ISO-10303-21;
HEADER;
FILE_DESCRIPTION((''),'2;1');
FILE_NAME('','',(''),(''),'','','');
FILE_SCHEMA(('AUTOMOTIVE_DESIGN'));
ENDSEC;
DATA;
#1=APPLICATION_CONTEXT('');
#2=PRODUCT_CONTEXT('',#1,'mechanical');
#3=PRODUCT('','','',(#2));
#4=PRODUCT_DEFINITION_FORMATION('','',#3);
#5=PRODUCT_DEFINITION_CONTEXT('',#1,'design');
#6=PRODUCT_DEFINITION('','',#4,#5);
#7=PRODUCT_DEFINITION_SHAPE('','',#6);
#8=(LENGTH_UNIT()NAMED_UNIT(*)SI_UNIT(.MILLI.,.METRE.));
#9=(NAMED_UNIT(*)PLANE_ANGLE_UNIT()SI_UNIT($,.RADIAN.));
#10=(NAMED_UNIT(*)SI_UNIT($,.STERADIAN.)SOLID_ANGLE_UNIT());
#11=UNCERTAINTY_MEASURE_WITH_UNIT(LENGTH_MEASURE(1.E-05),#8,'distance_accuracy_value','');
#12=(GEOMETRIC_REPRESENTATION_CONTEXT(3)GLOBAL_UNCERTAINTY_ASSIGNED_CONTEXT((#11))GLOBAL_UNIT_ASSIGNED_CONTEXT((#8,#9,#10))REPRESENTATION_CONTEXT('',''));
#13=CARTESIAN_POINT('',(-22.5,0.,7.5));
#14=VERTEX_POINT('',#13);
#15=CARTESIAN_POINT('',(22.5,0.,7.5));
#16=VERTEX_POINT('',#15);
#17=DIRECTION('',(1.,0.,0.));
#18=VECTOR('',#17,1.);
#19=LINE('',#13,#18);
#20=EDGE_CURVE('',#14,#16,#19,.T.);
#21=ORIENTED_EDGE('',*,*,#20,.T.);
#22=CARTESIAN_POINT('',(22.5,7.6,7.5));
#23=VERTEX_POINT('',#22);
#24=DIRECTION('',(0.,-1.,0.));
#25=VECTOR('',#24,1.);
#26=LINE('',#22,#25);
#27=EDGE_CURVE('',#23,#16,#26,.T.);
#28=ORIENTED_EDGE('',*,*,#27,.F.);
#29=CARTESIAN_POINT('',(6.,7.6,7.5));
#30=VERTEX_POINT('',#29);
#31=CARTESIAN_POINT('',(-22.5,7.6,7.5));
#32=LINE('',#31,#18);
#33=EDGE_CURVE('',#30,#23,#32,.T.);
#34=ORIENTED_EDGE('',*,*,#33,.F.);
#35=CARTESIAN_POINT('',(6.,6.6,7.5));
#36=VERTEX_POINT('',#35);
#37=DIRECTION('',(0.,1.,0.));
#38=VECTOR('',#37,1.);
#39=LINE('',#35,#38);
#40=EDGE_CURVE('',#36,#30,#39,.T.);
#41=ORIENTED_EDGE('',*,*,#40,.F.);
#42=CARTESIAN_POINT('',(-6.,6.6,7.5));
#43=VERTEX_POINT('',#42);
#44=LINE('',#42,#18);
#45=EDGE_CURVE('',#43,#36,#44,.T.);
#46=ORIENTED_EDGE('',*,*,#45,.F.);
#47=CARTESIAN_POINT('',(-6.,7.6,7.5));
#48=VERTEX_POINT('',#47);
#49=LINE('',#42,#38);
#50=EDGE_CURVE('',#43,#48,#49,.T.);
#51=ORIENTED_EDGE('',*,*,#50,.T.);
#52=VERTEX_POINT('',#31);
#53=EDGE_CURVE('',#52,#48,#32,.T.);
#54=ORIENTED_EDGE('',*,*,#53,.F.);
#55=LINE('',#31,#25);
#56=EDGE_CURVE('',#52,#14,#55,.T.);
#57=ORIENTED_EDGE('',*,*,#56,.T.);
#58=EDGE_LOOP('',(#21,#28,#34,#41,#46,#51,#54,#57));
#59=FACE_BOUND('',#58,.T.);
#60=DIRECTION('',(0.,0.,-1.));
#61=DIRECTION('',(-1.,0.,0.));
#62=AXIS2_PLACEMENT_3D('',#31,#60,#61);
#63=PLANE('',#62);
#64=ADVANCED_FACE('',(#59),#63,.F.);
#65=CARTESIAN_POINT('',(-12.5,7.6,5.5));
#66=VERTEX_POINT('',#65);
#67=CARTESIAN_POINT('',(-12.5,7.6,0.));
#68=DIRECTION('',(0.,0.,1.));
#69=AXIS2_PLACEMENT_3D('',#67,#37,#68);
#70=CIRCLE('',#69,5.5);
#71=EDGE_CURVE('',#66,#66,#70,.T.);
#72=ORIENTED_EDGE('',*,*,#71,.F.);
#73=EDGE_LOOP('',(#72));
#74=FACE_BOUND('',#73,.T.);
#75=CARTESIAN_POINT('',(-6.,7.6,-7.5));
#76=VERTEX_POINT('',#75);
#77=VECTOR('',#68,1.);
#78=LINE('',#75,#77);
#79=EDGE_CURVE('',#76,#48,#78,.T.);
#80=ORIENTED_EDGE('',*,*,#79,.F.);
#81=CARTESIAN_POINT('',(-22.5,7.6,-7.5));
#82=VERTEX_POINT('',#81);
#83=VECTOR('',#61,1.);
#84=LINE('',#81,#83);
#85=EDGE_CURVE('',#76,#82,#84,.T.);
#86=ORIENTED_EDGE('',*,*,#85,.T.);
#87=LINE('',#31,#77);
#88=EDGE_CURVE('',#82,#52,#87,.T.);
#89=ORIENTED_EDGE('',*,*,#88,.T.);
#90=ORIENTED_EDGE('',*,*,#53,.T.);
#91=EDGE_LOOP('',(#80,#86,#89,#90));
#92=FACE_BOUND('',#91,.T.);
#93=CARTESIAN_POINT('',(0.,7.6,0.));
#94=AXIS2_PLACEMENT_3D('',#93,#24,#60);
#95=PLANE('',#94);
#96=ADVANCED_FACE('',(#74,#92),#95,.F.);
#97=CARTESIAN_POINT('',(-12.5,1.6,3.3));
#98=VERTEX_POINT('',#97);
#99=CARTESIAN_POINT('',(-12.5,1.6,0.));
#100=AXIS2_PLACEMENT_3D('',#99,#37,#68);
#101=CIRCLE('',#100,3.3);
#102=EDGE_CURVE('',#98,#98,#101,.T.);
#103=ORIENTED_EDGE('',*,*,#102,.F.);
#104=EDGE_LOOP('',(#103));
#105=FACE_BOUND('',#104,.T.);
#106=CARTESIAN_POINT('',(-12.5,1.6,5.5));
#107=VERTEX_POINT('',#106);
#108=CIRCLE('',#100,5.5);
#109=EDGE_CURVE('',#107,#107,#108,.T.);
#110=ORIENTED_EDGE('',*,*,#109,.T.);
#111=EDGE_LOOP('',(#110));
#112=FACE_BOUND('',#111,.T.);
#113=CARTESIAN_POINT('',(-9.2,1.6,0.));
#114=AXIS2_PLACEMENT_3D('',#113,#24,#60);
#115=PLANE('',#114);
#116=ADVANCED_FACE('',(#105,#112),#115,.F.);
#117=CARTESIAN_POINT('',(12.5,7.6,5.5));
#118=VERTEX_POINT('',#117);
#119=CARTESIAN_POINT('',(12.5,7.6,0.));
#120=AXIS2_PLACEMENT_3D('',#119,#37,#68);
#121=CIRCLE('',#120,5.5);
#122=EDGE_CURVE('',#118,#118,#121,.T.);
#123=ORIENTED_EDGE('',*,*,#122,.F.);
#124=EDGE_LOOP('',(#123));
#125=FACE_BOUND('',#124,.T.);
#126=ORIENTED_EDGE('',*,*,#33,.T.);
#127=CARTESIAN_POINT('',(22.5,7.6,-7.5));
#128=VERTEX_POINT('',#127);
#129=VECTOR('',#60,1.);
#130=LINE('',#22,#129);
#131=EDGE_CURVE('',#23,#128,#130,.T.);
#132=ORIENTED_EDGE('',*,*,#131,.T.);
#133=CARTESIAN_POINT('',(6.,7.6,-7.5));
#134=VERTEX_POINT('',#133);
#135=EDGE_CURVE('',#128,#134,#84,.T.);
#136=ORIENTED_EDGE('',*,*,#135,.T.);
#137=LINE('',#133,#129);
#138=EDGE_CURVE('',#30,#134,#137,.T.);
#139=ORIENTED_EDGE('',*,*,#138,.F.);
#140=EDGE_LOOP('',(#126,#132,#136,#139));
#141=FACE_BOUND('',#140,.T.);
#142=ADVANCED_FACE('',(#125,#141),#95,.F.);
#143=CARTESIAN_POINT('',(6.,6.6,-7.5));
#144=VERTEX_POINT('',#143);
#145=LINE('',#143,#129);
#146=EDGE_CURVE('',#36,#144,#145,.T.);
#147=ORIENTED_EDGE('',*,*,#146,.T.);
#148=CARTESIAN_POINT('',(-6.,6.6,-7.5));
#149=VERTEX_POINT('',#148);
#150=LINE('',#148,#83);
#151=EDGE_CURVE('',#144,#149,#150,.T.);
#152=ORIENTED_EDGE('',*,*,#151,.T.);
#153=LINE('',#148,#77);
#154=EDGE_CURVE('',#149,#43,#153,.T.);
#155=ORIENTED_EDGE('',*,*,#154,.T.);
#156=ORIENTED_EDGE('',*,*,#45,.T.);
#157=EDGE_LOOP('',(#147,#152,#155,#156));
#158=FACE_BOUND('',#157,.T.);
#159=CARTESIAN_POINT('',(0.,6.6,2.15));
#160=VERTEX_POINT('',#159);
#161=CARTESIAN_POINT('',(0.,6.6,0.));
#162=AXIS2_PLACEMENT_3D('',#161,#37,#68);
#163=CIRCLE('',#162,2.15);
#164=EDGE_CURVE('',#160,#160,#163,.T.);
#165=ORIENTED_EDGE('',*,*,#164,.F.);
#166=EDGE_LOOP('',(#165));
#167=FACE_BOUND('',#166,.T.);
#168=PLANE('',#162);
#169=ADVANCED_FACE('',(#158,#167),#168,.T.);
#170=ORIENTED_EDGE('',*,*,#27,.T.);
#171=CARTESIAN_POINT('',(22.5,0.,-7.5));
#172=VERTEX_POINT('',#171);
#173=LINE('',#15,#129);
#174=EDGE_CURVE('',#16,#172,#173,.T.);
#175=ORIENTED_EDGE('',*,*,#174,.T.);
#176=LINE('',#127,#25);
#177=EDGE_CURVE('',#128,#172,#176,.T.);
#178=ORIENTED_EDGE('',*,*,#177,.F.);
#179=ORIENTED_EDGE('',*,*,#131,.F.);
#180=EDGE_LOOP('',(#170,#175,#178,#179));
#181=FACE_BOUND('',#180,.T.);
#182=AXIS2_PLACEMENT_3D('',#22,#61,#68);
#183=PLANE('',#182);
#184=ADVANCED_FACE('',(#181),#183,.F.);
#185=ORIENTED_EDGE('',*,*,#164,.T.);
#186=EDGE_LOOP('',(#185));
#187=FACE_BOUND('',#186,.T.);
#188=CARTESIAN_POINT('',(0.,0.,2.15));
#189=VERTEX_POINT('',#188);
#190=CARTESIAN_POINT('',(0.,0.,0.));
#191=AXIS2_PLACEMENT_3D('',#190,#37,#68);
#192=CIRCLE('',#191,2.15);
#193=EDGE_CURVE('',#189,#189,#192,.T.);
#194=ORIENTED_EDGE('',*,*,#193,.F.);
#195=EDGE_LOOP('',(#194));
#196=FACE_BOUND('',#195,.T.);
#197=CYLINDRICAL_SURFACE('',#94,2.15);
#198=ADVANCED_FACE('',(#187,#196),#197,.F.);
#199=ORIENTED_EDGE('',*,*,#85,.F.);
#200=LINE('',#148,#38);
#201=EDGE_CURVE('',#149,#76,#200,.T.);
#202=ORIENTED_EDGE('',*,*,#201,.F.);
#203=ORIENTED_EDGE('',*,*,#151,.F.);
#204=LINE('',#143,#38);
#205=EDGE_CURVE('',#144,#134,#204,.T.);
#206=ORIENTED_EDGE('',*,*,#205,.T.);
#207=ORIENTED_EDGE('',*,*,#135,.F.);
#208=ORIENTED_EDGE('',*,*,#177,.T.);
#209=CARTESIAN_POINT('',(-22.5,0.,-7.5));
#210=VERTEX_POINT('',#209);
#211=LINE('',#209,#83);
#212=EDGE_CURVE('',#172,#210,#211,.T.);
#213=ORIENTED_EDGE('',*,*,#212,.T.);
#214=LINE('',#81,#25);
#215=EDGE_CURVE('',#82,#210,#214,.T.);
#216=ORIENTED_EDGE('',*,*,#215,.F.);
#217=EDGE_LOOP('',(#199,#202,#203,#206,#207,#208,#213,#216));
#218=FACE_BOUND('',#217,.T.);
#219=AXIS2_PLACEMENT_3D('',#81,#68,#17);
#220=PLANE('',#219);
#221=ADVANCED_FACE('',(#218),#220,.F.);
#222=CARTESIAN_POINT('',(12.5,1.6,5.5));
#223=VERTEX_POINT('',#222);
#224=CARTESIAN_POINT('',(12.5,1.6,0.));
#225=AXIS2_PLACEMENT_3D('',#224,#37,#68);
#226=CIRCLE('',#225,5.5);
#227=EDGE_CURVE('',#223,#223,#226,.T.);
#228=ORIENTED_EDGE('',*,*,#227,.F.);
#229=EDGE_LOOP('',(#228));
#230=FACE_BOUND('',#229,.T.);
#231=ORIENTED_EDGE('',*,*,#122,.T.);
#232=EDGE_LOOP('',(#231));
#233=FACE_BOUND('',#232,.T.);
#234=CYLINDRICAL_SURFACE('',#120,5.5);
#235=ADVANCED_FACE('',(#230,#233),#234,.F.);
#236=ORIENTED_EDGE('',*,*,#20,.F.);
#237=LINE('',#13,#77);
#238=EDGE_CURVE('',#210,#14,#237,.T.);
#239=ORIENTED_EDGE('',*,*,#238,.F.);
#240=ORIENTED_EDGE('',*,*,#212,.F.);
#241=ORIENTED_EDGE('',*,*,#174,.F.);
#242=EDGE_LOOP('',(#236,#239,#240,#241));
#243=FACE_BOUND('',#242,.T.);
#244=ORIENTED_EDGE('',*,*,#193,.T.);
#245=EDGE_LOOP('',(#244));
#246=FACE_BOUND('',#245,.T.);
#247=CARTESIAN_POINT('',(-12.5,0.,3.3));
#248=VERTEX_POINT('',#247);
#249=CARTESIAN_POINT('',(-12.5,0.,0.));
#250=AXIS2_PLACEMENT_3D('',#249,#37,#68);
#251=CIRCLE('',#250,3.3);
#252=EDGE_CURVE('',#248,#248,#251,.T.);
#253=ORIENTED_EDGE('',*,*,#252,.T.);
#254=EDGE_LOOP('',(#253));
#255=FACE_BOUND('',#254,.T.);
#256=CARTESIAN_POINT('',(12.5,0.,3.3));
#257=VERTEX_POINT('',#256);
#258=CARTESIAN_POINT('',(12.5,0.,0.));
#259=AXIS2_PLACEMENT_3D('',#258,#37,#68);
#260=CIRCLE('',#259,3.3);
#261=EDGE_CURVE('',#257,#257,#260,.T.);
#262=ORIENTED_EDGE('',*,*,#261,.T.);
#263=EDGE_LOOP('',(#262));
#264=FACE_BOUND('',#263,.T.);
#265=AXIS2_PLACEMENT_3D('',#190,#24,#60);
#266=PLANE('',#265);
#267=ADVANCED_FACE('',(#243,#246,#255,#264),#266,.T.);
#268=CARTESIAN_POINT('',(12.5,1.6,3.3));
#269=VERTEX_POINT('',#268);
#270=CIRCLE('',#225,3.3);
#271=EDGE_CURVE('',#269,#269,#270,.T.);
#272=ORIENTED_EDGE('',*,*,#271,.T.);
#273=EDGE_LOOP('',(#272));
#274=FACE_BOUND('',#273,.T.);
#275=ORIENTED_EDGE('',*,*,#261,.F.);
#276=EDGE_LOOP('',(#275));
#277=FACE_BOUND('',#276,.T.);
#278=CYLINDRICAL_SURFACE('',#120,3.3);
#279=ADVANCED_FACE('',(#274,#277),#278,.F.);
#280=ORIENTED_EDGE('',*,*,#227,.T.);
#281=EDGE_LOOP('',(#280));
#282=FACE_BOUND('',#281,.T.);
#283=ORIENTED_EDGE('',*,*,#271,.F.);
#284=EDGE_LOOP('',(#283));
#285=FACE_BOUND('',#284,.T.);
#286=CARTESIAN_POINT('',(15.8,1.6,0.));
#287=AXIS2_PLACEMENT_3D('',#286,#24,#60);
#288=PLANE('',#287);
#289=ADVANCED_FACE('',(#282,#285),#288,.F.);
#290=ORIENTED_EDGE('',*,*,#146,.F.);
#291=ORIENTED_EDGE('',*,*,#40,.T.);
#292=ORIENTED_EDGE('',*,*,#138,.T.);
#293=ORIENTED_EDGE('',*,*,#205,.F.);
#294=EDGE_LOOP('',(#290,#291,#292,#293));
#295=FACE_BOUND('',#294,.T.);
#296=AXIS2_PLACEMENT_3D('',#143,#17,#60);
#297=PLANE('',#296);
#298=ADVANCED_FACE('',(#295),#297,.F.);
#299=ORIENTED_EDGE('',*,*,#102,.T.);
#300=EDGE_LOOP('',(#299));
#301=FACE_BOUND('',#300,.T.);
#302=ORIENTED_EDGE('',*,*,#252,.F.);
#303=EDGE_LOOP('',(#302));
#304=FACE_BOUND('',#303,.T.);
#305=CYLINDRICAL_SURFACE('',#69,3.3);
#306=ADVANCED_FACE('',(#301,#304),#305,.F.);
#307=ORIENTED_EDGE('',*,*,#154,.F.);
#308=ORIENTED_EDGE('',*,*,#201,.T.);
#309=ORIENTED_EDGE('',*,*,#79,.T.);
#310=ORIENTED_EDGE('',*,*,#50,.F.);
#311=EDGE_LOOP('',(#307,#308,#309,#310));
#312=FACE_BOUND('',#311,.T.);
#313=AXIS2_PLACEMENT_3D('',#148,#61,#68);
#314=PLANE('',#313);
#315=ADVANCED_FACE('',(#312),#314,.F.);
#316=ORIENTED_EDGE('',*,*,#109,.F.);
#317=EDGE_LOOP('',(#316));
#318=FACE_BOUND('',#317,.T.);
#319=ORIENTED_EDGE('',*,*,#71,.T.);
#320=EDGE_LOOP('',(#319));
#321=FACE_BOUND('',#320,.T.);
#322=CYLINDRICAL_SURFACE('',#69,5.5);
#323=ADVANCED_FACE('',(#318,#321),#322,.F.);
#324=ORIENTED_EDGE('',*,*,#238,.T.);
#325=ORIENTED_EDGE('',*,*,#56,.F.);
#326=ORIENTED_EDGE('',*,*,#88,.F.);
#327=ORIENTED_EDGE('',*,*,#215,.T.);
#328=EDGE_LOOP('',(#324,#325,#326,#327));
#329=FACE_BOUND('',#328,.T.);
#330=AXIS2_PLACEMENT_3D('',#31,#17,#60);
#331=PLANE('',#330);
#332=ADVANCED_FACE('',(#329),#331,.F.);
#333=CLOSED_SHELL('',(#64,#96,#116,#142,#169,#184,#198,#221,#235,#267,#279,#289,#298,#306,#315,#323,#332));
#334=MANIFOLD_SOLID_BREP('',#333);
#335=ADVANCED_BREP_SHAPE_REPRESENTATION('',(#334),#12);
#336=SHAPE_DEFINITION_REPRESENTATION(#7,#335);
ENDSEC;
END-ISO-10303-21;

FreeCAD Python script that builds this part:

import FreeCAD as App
import Part
import Sketcher

doc = App.newDocument("Part")
body = doc.addObject("PartDesign::Body", "Body")

# Sketch on XZ plane
sketch1 = body.newObject("Sketcher::SketchObject", "Sketch")
sketch1.AttachmentSupport = (doc.getObject("XZ_Plane"), [""])
sketch1.MapMode = "FlatFace"
sketch1.addGeometry(Part.LineSegment(App.Vector(-22.5, -7.5, 0), App.Vector(-22.5, 7.5, 0)), False)
sketch1.addGeometry(Part.LineSegment(App.Vector(-22.5, 7.5, 0), App.Vector(22.5, 7.5, 0)), False)
sketch1.addGeometry(Part.LineSegment(App.Vector(22.5, 7.5, 0), App.Vector(22.5, -7.5, 0)), False)
sketch1.addGeometry(Part.LineSegment(App.Vector(22.5, -7.5, 0), App.Vector(-22.5, -7.5, 0)), False)
sketch1.addGeometry(Part.Circle(App.Vector(0, 0, 0), App.Vector(0, 0, 1), 2.1), False)
sketch1.addConstraint(Sketcher.Constraint("Coincident", 0, 2, 1, 1))
sketch1.addConstraint(Sketcher.Constraint("Coincident", 1, 2, 2, 1))
sketch1.addConstraint(Sketcher.Constraint("Coincident", 2, 2, 3, 1))
sketch1.addConstraint(Sketcher.Constraint("Coincident", 3, 2, 0, 1))
sketch1.addConstraint(Sketcher.Constraint("Vertical", 0))
sketch1.addConstraint(Sketcher.Constraint("Horizontal", 1))
sketch1.addConstraint(Sketcher.Constraint("Vertical", 2))
sketch1.addConstraint(Sketcher.Constraint("Horizontal", 3))
sketch1.addConstraint(Sketcher.Constraint("Coincident", 4, 3, -1, 1))
sketch1.addConstraint(Sketcher.Constraint("Symmetric", 0, 2, 2, 2, -1, 1))
sketch1.addConstraint(Sketcher.Constraint("Diameter", 4, 4.3))
sketch1.addConstraint(Sketcher.Constraint("DistanceX", 1, 1, 1, 2, 45.0))
sketch1.addConstraint(Sketcher.Constraint("DistanceY", 0, 1, 0, 2, 15.0))
pad1 = body.newObject("PartDesign::Pad", "Pad")
pad1.Profile = sketch1
pad1.Length = 7.6
pad1.Reversed = True

# Sketch on XZ plane
sketch2 = body.newObject("Sketcher::SketchObject", "Sketch001")
sketch2.AttachmentSupport = (doc.getObject("XZ_Plane"), [""])
sketch2.MapMode = "FlatFace"
sketch2.AttachmentOffset = App.Placement(App.Vector(0, 0, -7.6), App.Rotation())
sketch2.addGeometry(Part.Circle(App.Vector(-12.5, 0, 0), App.Vector(0, 0, 1), 3.3), False)
sketch2.addGeometry(Part.Circle(App.Vector(12.5, 0, 0), App.Vector(0, 0, 1), 3.3), False)
sketch2.addConstraint(Sketcher.Constraint("Equal", 0, 1))
sketch2.addConstraint(Sketcher.Constraint("Symmetric", 0, 3, 1, 3, -1, 1))
sketch2.addConstraint(Sketcher.Constraint("PointOnObject", 0, 3, -1))
sketch2.addConstraint(Sketcher.Constraint("Diameter", 0, 6.6))
sketch2.addConstraint(Sketcher.Constraint("DistanceX", 0, 3, 1, 3, 25.0))
doc.recompute()
hole = body.newObject("PartDesign::Hole", "Hole")
hole.Profile = sketch2
hole.ThreadType = "None"
hole.Diameter = 6.6
hole.DepthType = "ThroughAll"
hole.HoleCutType = "Counterbore"
hole.HoleCutDiameter = 11
hole.HoleCutDepth = 6
hole.Reversed = True

# Sketch on XZ plane
sketch3 = body.newObject("Sketcher::SketchObject", "Sketch002")
sketch3.AttachmentSupport = (doc.getObject("XZ_Plane"), [""])
sketch3.MapMode = "FlatFace"
sketch3.AttachmentOffset = App.Placement(App.Vector(0, 0, -7.6), App.Rotation())
sketch3.addGeometry(Part.LineSegment(App.Vector(-6, -8, 0), App.Vector(-6, 8, 0)), False)
sketch3.addGeometry(Part.LineSegment(App.Vector(-6, 8, 0), App.Vector(6, 8, 0)), False)
sketch3.addGeometry(Part.LineSegment(App.Vector(6, 8, 0), App.Vector(6, -8, 0)), False)
sketch3.addGeometry(Part.LineSegment(App.Vector(6, -8, 0), App.Vector(-6, -8, 0)), False)
sketch3.addConstraint(Sketcher.Constraint("Coincident", 0, 2, 1, 1))
sketch3.addConstraint(Sketcher.Constraint("Coincident", 1, 2, 2, 1))
sketch3.addConstraint(Sketcher.Constraint("Coincident", 2, 2, 3, 1))
sketch3.addConstraint(Sketcher.Constraint("Coincident", 3, 2, 0, 1))
sketch3.addConstraint(Sketcher.Constraint("Vertical", 0))
sketch3.addConstraint(Sketcher.Constraint("Horizontal", 1))
sketch3.addConstraint(Sketcher.Constraint("Vertical", 2))
sketch3.addConstraint(Sketcher.Constraint("Horizontal", 3))
sketch3.addConstraint(Sketcher.Constraint("Symmetric", 0, 2, 2, 2, -1, 1))
sketch3.addConstraint(Sketcher.Constraint("DistanceX", 1, 1, 1, 2, 12.0))
sketch3.addConstraint(Sketcher.Constraint("DistanceY", 0, 1, 0, 2, 15.0))
pocket1 = body.newObject("PartDesign::Pocket", "Pocket")
pocket1.Profile = sketch3
pocket1.Length = 1
pocket1.Reversed = True

doc.recompute()
